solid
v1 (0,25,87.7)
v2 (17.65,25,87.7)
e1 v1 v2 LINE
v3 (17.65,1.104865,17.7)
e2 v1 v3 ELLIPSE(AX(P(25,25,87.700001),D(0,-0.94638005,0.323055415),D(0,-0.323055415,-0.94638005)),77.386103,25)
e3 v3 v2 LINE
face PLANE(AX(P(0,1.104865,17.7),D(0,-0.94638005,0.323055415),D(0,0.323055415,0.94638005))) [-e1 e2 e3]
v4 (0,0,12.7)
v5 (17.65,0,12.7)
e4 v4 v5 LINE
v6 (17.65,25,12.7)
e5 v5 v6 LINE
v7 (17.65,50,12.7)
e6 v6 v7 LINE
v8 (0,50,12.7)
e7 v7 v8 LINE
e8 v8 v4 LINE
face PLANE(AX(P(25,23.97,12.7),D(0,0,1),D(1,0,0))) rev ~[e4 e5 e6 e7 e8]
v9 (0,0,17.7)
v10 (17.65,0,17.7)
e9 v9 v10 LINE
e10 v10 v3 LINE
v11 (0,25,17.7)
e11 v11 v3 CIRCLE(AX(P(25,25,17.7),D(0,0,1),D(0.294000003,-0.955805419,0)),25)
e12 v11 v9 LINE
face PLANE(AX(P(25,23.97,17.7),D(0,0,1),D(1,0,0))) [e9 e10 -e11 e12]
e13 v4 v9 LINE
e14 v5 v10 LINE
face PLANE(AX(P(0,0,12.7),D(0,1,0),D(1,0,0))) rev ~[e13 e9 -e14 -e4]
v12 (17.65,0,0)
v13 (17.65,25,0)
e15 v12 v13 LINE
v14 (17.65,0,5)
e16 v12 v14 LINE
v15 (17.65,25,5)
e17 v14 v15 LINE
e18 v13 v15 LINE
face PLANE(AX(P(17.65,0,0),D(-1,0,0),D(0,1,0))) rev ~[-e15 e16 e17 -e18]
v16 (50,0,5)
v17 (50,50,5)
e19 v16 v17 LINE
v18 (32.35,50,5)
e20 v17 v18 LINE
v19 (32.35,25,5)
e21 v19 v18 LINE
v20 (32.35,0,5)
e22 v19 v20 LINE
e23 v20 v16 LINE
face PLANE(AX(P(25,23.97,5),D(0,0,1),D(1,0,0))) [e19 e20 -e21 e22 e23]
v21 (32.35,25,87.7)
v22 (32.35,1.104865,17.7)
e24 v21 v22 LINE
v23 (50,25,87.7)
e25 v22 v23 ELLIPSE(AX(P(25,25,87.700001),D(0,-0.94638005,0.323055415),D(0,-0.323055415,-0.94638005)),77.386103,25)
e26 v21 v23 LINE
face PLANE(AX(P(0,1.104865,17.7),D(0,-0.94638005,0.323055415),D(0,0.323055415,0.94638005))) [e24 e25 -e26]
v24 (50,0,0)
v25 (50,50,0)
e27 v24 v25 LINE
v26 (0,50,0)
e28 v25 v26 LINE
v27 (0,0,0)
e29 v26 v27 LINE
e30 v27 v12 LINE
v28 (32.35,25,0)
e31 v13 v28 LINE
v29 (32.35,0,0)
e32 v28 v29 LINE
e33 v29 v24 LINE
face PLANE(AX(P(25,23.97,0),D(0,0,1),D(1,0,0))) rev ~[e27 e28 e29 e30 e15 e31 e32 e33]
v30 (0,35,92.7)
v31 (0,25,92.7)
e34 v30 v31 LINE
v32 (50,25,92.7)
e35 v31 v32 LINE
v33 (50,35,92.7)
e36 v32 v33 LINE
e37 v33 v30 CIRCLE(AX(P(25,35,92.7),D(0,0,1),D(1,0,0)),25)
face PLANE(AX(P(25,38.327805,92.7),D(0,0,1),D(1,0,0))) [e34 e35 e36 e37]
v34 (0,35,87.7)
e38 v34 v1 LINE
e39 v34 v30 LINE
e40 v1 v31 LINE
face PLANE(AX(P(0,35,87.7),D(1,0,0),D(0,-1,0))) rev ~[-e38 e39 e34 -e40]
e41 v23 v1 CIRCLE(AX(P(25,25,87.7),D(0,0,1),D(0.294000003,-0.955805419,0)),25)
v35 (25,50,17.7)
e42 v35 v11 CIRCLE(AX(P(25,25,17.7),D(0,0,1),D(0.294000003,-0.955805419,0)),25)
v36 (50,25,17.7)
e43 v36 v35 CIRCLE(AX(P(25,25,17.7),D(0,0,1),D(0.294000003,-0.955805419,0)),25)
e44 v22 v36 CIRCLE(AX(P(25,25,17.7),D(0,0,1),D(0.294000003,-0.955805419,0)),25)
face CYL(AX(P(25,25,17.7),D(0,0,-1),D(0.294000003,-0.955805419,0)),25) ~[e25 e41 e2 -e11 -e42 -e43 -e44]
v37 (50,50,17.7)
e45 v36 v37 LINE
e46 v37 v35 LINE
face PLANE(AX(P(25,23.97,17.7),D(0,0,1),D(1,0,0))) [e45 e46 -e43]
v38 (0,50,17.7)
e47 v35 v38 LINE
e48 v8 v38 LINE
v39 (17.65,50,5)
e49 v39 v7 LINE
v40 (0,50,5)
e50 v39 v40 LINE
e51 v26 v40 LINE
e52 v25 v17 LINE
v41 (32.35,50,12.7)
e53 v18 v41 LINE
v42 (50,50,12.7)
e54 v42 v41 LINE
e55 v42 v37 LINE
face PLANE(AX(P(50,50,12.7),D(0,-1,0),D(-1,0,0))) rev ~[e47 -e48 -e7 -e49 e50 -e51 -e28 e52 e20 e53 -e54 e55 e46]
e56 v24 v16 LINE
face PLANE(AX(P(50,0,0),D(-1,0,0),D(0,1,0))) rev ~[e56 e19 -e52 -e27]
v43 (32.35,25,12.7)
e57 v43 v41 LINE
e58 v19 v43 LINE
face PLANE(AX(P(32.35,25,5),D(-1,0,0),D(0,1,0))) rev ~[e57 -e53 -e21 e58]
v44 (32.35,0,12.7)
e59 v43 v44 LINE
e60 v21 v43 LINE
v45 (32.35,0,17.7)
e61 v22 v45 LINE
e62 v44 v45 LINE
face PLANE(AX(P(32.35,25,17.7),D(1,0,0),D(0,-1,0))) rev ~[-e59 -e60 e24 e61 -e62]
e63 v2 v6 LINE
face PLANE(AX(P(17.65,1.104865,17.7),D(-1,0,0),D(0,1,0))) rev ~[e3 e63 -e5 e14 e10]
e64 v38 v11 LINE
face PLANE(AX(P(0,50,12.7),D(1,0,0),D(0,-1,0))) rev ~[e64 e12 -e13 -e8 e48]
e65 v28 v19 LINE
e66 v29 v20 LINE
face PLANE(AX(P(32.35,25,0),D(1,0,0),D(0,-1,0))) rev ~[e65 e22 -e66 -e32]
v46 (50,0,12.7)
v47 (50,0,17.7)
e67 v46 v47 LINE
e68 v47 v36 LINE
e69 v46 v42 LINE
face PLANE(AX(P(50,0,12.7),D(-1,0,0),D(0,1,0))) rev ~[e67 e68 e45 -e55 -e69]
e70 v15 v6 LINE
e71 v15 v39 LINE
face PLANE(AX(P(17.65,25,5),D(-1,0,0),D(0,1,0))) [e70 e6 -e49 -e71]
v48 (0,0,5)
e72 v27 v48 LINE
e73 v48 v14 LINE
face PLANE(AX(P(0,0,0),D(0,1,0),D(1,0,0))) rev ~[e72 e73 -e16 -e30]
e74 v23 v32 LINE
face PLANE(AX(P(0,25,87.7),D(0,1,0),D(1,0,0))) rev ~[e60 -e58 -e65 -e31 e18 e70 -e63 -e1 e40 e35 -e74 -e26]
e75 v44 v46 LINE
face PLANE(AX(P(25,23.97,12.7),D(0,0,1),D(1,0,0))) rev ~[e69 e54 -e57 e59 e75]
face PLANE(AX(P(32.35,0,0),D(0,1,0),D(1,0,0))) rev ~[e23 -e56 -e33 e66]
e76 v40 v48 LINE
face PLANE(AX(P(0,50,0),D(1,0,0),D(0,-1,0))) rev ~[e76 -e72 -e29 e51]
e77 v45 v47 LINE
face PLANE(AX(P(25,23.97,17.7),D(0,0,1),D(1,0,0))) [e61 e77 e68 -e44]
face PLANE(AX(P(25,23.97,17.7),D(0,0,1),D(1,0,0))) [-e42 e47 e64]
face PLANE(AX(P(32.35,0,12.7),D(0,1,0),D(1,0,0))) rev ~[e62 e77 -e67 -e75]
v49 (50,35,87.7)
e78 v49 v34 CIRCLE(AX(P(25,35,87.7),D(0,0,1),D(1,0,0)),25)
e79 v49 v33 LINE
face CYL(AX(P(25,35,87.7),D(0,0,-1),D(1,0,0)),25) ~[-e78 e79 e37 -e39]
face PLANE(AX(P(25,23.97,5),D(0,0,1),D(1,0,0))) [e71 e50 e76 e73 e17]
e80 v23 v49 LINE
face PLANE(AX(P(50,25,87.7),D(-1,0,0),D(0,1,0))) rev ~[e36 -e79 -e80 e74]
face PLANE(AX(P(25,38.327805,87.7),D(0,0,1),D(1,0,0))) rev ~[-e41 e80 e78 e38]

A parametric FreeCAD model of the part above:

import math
import FreeCAD as App
import Part
import Sketcher

V = App.Vector
Q = App.Units.Quantity

doc = App.newDocument("Part")
body = doc.addObject("PartDesign::Body", "Body")

# Sketch on XY plane
sketch1 = body.newObject("Sketcher::SketchObject", "Sketch")
sketch1.AttachmentSupport = (doc.getObject("XY_Plane"), [""])
sketch1.MapMode = "FlatFace"
sketch1.addGeometry(Part.LineSegment(V(0, 50, 0), V(0, 0, 0)), False)
sketch1.addGeometry(Part.LineSegment(V(0, 0, 0), V(18, 0, 0)), False)
sketch1.addGeometry(Part.LineSegment(V(18, 0, 0), V(18, 25, 0)), False)
sketch1.addGeometry(Part.LineSegment(V(18, 25, 0), V(32, 25, 0)), False)
sketch1.addGeometry(Part.LineSegment(V(32, 25, 0), V(32, 0, 0)), False)
sketch1.addGeometry(Part.LineSegment(V(32, 0, 0), V(50, 0, 0)), False)
sketch1.addGeometry(Part.LineSegment(V(50, 0, 0), V(50, 50, 0)), False)
sketch1.addGeometry(Part.LineSegment(V(50, 50, 0), V(0, 50, 0)), False)
sketch1.addConstraint(Sketcher.Constraint("Coincident", 0, 2, 1, 1))
sketch1.addConstraint(Sketcher.Constraint("Coincident", 1, 2, 2, 1))
sketch1.addConstraint(Sketcher.Constraint("Coincident", 2, 2, 3, 1))
sketch1.addConstraint(Sketcher.Constraint("Coincident", 3, 2, 4, 1))
sketch1.addConstraint(Sketcher.Constraint("Coincident", 4, 2, 5, 1))
sketch1.addConstraint(Sketcher.Constraint("Coincident", 5, 2, 6, 1))
sketch1.addConstraint(Sketcher.Constraint("Coincident", 6, 2, 7, 1))
sketch1.addConstraint(Sketcher.Constraint("Coincident", 7, 2, 0, 1))
sketch1.addConstraint(Sketcher.Constraint("Vertical", 0))
sketch1.addConstraint(Sketcher.Constraint("Horizontal", 1))
sketch1.addConstraint(Sketcher.Constraint("Vertical", 2))
sketch1.addConstraint(Sketcher.Constraint("Horizontal", 3))
sketch1.addConstraint(Sketcher.Constraint("Vertical", 4))
sketch1.addConstraint(Sketcher.Constraint("Horizontal", 5))
sketch1.addConstraint(Sketcher.Constraint("Vertical", 6))
sketch1.addConstraint(Sketcher.Constraint("Horizontal", 7))
sketch1.addConstraint(Sketcher.Constraint("Coincident", 0, 2, -1, 1))
sketch1.addConstraint(Sketcher.Constraint("PointOnObject", 4, 2, -1))
sketch1.addConstraint(Sketcher.Constraint("Equal", 1, 5))
sketch1.addConstraint(Sketcher.Constraint("Equal", 7, 0))
sketch1.addConstraint(Sketcher.Constraint("DistanceX", 7, 2, 7, 1, Q("50 mm")))
sketch1.addConstraint(Sketcher.Constraint("DistanceY", 2, 1, 2, 2, Q("25 mm")))
sketch1.addConstraint(Sketcher.Constraint("DistanceX", 3, 1, 3, 2, Q("14.7 mm")))
pad1 = body.newObject("PartDesign::Pad", "Pad")
pad1.Profile = sketch1
pad1.Length = 5

# Sketch on XY plane
sketch2 = body.newObject("Sketcher::SketchObject", "Sketch001")
sketch2.AttachmentSupport = (doc.getObject("XY_Plane"), [""])
sketch2.MapMode = "FlatFace"
sketch2.AttachmentOffset = App.Placement(V(0, 0, 5), App.Rotation())
sketch2.addGeometry(Part.LineSegment(V(18, 50, 0), V(18, 25, 0)), False)
sketch2.addGeometry(Part.LineSegment(V(18, 25, 0), V(32, 25, 0)), False)
sketch2.addGeometry(Part.LineSegment(V(32, 25, 0), V(32, 50, 0)), False)
sketch2.addGeometry(Part.LineSegment(V(32, 50, 0), V(18, 50, 0)), False)
sketch2.addConstraint(Sketcher.Constraint("Coincident", 0, 2, 1, 1))
sketch2.addConstraint(Sketcher.Constraint("Coincident", 1, 2, 2, 1))
sketch2.addConstraint(Sketcher.Constraint("Coincident", 2, 2, 3, 1))
sketch2.addConstraint(Sketcher.Constraint("Coincident", 3, 2, 0, 1))
sketch2.addConstraint(Sketcher.Constraint("Vertical", 0))
sketch2.addConstraint(Sketcher.Constraint("Horizontal", 1))
sketch2.addConstraint(Sketcher.Constraint("Vertical", 2))
sketch2.addConstraint(Sketcher.Constraint("Horizontal", 3))
sketch2.addConstraint(Sketcher.Constraint("DistanceY", 0, 2, 0, 1, Q("25 mm")))
sketch2.addConstraint(Sketcher.Constraint("DistanceX", 1, 1, 1, 2, Q("14.7 mm")))
sketch2.addConstraint(Sketcher.Constraint("DistanceY", -1, 1, 0, 2, Q("25 mm")))
sketch2.addConstraint(Sketcher.Constraint("DistanceX", -1, 1, 0, 2, Q("17.65 mm")))
pad2 = body.newObject("PartDesign::Pad", "Pad001")
pad2.Profile = sketch2
pad2.Length = 7.7

# Sketch on XY plane
sketch3 = body.newObject("Sketcher::SketchObject", "Sketch002")
sketch3.AttachmentSupport = (doc.getObject("XY_Plane"), [""])
sketch3.MapMode = "FlatFace"
sketch3.AttachmentOffset = App.Placement(V(0, 0, 12.7), App.Rotation())
sketch3.addGeometry(Part.LineSegment(V(0, 50, 0), V(0, 0, 0)), False)
sketch3.addGeometry(Part.LineSegment(V(0, 0, 0), V(18, 0, 0)), False)
sketch3.addGeometry(Part.LineSegment(V(18, 0, 0), V(18, 25, 0)), False)
sketch3.addGeometry(Part.LineSegment(V(18, 25, 0), V(32, 25, 0)), False)
sketch3.addGeometry(Part.LineSegment(V(32, 25, 0), V(32, 0, 0)), False)
sketch3.addGeometry(Part.LineSegment(V(32, 0, 0), V(50, 0, 0)), False)
sketch3.addGeometry(Part.LineSegment(V(50, 0, 0), V(50, 50, 0)), False)
sketch3.addGeometry(Part.LineSegment(V(50, 50, 0), V(0, 50, 0)), False)
sketch3.addConstraint(Sketcher.Constraint("Coincident", 0, 2, 1, 1))
sketch3.addConstraint(Sketcher.Constraint("Coincident", 1, 2, 2, 1))
sketch3.addConstraint(Sketcher.Constraint("Coincident", 2, 2, 3, 1))
sketch3.addConstraint(Sketcher.Constraint("Coincident", 3, 2, 4, 1))
sketch3.addConstraint(Sketcher.Constraint("Coincident", 4, 2, 5, 1))
sketch3.addConstraint(Sketcher.Constraint("Coincident", 5, 2, 6, 1))
sketch3.addConstraint(Sketcher.Constraint("Coincident", 6, 2, 7, 1))
sketch3.addConstraint(Sketcher.Constraint("Coincident", 7, 2, 0, 1))
sketch3.addConstraint(Sketcher.Constraint("Vertical", 0))
sketch3.addConstraint(Sketcher.Constraint("Horizontal", 1))
sketch3.addConstraint(Sketcher.Constraint("Vertical", 2))
sketch3.addConstraint(Sketcher.Constraint("Horizontal", 3))
sketch3.addConstraint(Sketcher.Constraint("Vertical", 4))
sketch3.addConstraint(Sketcher.Constraint("Horizontal", 5))
sketch3.addConstraint(Sketcher.Constraint("Vertical", 6))
sketch3.addConstraint(Sketcher.Constraint("Horizontal", 7))
sketch3.addConstraint(Sketcher.Constraint("Coincident", 0, 2, -1, 1))
sketch3.addConstraint(Sketcher.Constraint("PointOnObject", 4, 2, -1))
sketch3.addConstraint(Sketcher.Constraint("Equal", 1, 5))
sketch3.addConstraint(Sketcher.Constraint("Equal", 7, 0))
sketch3.addConstraint(Sketcher.Constraint("DistanceX", 7, 2, 7, 1, Q("50 mm")))
sketch3.addConstraint(Sketcher.Constraint("DistanceY", 2, 1, 2, 2, Q("25 mm")))
sketch3.addConstraint(Sketcher.Constraint("DistanceX", 3, 1, 3, 2, Q("14.7 mm")))
pad3 = body.newObject("PartDesign::Pad", "Pad002")
pad3.Profile = sketch3
pad3.Length = 5

# Sketch on XY plane
sketch4 = body.newObject("Sketcher::SketchObject", "Sketch003")
sketch4.AttachmentSupport = (doc.getObject("XY_Plane"), [""])
sketch4.MapMode = "FlatFace"
sketch4.AttachmentOffset = App.Placement(V(0, 0, 17.7), App.Rotation())
sketch4.addGeometry(Part.LineSegment(V(32, 25, 0), V(32, 1, 0)), False)
sketch4.addGeometry(Part.ArcOfCircle(Part.Circle(V(25, 25, 0), V(0, 0, 1), 25), math.radians(-73), math.radians(253)), False)
sketch4.addGeometry(Part.LineSegment(V(18, 1, 0), V(18, 25, 0)), False)
sketch4.addGeometry(Part.LineSegment(V(18, 25, 0), V(32, 25, 0)), False)
sketch4.addConstraint(Sketcher.Constraint("Coincident", 0, 2, 1, 1))
sketch4.addConstraint(Sketcher.Constraint("Coincident", 1, 2, 2, 1))
sketch4.addConstraint(Sketcher.Constraint("Coincident", 2, 2, 3, 1))
sketch4.addConstraint(Sketcher.Constraint("Coincident", 3, 2, 0, 1))
sketch4.addConstraint(Sketcher.Constraint("Vertical", 0))
sketch4.addConstraint(Sketcher.Constraint("Vertical", 2))
sketch4.addConstraint(Sketcher.Constraint("Horizontal", 3))
sketch4.addConstraint(Sketcher.Constraint("Horizontal", 0, 2, 1, 2))
sketch4.addConstraint(Sketcher.Constraint("Horizontal", 1, 3, 2, 2))
sketch4.addConstraint(Sketcher.Constraint("Radius", 1, Q("25 mm")))
sketch4.addConstraint(Sketcher.Constraint("DistanceX", 3, 1, 3, 2, Q("14.7 mm")))
sketch4.addConstraint(Sketcher.Constraint("DistanceX", -1, 1, 1, 3, Q("25 mm")))
sketch4.addConstraint(Sketcher.Constraint("DistanceY", -1, 1, 1, 3, Q("25 mm")))
pad4 = body.newObject("PartDesign::Pad", "Pad003")
pad4.Profile = sketch4
pad4.Length = 70

# Sketch on XY plane
sketch5 = body.newObject("Sketcher::SketchObject", "Sketch004")
sketch5.AttachmentSupport = (doc.getObject("XY_Plane"), [""])
sketch5.MapMode = "FlatFace"
sketch5.AttachmentOffset = App.Placement(V(0, 0, 87.7), App.Rotation())
sketch5.addGeometry(Part.LineSegment(V(0, 35, 0), V(0, 25, 0)), False)
sketch5.addGeometry(Part.LineSegment(V(0, 25, 0), V(50, 25, 0)), False)
sketch5.addGeometry(Part.LineSegment(V(50, 25, 0), V(50, 35, 0)), False)
sketch5.addGeometry(Part.ArcOfCircle(Part.Circle(V(25, 35, 0), V(0, 0, 1), 25), math.radians(0), math.radians(180)), False)
sketch5.addConstraint(Sketcher.Constraint("Coincident", 0, 2, 1, 1))
sketch5.addConstraint(Sketcher.Constraint("Coincident", 1, 2, 2, 1))
sketch5.addConstraint(Sketcher.Constraint("Tangent", 2, 2, 3, 1))
sketch5.addConstraint(Sketcher.Constraint("Tangent", 3, 2, 0, 1))
sketch5.addConstraint(Sketcher.Constraint("Vertical", 0))
sketch5.addConstraint(Sketcher.Constraint("Horizontal", 1))
sketch5.addConstraint(Sketcher.Constraint("Vertical", 2))
sketch5.addConstraint(Sketcher.Constraint("PointOnObject", 0, 2, -2))
sketch5.addConstraint(Sketcher.Constraint("Radius", 3, Q("25 mm")))
sketch5.addConstraint(Sketcher.Constraint("DistanceY", 0, 2, 0, 1, Q("10 mm")))
sketch5.addConstraint(Sketcher.Constraint("DistanceY", -1, 1, 3, 3, Q("35 mm")))
pad5 = body.newObject("PartDesign::Pad", "Pad004")
pad5.Profile = sketch5
pad5.Length = 5

# Sketch on YZ plane
sketch6 = body.newObject("Sketcher::SketchObject", "Sketch005")
sketch6.AttachmentSupport = (doc.getObject("YZ_Plane"), [""])
sketch6.MapMode = "FlatFace"
sketch6.addGeometry(Part.LineSegment(V(1, 18, 0), V(25, 88, 0)), False)
sketch6.addGeometry(Part.LineSegment(V(25, 88, 0), V(1, 88, 0)), False)
sketch6.addGeometry(Part.LineSegment(V(1, 88, 0), V(1, 18, 0)), False)
sketch6.addConstraint(Sketcher.Constraint("Coincident", 0, 2, 1, 1))
sketch6.addConstraint(Sketcher.Constraint("Coincident", 1, 2, 2, 1))
sketch6.addConstraint(Sketcher.Constraint("Coincident", 2, 2, 0, 1))
sketch6.addConstraint(Sketcher.Constraint("Horizontal", 1))
sketch6.addConstraint(Sketcher.Constraint("Vertical", 2))
sketch6.addConstraint(Sketcher.Constraint("DistanceY", 2, 2, 2, 1, Q("70 mm")))
sketch6.addConstraint(Sketcher.Constraint("DistanceX", -1, 1, 0, 2, Q("25 mm")))
sketch6.addConstraint(Sketcher.Constraint("DistanceY", -1, 1, 0, 2, Q("87.7 mm")))
sketch6.addConstraint(Sketcher.Constraint("DistanceX", 1, 2, 1, 1, Q("23.895135 mm")))
pocket1 = body.newObject("PartDesign::Pocket", "Pocket")
pocket1.Profile = sketch6
pocket1.Type = "ThroughAll"
pocket1.Reversed = True

doc.recompute()
